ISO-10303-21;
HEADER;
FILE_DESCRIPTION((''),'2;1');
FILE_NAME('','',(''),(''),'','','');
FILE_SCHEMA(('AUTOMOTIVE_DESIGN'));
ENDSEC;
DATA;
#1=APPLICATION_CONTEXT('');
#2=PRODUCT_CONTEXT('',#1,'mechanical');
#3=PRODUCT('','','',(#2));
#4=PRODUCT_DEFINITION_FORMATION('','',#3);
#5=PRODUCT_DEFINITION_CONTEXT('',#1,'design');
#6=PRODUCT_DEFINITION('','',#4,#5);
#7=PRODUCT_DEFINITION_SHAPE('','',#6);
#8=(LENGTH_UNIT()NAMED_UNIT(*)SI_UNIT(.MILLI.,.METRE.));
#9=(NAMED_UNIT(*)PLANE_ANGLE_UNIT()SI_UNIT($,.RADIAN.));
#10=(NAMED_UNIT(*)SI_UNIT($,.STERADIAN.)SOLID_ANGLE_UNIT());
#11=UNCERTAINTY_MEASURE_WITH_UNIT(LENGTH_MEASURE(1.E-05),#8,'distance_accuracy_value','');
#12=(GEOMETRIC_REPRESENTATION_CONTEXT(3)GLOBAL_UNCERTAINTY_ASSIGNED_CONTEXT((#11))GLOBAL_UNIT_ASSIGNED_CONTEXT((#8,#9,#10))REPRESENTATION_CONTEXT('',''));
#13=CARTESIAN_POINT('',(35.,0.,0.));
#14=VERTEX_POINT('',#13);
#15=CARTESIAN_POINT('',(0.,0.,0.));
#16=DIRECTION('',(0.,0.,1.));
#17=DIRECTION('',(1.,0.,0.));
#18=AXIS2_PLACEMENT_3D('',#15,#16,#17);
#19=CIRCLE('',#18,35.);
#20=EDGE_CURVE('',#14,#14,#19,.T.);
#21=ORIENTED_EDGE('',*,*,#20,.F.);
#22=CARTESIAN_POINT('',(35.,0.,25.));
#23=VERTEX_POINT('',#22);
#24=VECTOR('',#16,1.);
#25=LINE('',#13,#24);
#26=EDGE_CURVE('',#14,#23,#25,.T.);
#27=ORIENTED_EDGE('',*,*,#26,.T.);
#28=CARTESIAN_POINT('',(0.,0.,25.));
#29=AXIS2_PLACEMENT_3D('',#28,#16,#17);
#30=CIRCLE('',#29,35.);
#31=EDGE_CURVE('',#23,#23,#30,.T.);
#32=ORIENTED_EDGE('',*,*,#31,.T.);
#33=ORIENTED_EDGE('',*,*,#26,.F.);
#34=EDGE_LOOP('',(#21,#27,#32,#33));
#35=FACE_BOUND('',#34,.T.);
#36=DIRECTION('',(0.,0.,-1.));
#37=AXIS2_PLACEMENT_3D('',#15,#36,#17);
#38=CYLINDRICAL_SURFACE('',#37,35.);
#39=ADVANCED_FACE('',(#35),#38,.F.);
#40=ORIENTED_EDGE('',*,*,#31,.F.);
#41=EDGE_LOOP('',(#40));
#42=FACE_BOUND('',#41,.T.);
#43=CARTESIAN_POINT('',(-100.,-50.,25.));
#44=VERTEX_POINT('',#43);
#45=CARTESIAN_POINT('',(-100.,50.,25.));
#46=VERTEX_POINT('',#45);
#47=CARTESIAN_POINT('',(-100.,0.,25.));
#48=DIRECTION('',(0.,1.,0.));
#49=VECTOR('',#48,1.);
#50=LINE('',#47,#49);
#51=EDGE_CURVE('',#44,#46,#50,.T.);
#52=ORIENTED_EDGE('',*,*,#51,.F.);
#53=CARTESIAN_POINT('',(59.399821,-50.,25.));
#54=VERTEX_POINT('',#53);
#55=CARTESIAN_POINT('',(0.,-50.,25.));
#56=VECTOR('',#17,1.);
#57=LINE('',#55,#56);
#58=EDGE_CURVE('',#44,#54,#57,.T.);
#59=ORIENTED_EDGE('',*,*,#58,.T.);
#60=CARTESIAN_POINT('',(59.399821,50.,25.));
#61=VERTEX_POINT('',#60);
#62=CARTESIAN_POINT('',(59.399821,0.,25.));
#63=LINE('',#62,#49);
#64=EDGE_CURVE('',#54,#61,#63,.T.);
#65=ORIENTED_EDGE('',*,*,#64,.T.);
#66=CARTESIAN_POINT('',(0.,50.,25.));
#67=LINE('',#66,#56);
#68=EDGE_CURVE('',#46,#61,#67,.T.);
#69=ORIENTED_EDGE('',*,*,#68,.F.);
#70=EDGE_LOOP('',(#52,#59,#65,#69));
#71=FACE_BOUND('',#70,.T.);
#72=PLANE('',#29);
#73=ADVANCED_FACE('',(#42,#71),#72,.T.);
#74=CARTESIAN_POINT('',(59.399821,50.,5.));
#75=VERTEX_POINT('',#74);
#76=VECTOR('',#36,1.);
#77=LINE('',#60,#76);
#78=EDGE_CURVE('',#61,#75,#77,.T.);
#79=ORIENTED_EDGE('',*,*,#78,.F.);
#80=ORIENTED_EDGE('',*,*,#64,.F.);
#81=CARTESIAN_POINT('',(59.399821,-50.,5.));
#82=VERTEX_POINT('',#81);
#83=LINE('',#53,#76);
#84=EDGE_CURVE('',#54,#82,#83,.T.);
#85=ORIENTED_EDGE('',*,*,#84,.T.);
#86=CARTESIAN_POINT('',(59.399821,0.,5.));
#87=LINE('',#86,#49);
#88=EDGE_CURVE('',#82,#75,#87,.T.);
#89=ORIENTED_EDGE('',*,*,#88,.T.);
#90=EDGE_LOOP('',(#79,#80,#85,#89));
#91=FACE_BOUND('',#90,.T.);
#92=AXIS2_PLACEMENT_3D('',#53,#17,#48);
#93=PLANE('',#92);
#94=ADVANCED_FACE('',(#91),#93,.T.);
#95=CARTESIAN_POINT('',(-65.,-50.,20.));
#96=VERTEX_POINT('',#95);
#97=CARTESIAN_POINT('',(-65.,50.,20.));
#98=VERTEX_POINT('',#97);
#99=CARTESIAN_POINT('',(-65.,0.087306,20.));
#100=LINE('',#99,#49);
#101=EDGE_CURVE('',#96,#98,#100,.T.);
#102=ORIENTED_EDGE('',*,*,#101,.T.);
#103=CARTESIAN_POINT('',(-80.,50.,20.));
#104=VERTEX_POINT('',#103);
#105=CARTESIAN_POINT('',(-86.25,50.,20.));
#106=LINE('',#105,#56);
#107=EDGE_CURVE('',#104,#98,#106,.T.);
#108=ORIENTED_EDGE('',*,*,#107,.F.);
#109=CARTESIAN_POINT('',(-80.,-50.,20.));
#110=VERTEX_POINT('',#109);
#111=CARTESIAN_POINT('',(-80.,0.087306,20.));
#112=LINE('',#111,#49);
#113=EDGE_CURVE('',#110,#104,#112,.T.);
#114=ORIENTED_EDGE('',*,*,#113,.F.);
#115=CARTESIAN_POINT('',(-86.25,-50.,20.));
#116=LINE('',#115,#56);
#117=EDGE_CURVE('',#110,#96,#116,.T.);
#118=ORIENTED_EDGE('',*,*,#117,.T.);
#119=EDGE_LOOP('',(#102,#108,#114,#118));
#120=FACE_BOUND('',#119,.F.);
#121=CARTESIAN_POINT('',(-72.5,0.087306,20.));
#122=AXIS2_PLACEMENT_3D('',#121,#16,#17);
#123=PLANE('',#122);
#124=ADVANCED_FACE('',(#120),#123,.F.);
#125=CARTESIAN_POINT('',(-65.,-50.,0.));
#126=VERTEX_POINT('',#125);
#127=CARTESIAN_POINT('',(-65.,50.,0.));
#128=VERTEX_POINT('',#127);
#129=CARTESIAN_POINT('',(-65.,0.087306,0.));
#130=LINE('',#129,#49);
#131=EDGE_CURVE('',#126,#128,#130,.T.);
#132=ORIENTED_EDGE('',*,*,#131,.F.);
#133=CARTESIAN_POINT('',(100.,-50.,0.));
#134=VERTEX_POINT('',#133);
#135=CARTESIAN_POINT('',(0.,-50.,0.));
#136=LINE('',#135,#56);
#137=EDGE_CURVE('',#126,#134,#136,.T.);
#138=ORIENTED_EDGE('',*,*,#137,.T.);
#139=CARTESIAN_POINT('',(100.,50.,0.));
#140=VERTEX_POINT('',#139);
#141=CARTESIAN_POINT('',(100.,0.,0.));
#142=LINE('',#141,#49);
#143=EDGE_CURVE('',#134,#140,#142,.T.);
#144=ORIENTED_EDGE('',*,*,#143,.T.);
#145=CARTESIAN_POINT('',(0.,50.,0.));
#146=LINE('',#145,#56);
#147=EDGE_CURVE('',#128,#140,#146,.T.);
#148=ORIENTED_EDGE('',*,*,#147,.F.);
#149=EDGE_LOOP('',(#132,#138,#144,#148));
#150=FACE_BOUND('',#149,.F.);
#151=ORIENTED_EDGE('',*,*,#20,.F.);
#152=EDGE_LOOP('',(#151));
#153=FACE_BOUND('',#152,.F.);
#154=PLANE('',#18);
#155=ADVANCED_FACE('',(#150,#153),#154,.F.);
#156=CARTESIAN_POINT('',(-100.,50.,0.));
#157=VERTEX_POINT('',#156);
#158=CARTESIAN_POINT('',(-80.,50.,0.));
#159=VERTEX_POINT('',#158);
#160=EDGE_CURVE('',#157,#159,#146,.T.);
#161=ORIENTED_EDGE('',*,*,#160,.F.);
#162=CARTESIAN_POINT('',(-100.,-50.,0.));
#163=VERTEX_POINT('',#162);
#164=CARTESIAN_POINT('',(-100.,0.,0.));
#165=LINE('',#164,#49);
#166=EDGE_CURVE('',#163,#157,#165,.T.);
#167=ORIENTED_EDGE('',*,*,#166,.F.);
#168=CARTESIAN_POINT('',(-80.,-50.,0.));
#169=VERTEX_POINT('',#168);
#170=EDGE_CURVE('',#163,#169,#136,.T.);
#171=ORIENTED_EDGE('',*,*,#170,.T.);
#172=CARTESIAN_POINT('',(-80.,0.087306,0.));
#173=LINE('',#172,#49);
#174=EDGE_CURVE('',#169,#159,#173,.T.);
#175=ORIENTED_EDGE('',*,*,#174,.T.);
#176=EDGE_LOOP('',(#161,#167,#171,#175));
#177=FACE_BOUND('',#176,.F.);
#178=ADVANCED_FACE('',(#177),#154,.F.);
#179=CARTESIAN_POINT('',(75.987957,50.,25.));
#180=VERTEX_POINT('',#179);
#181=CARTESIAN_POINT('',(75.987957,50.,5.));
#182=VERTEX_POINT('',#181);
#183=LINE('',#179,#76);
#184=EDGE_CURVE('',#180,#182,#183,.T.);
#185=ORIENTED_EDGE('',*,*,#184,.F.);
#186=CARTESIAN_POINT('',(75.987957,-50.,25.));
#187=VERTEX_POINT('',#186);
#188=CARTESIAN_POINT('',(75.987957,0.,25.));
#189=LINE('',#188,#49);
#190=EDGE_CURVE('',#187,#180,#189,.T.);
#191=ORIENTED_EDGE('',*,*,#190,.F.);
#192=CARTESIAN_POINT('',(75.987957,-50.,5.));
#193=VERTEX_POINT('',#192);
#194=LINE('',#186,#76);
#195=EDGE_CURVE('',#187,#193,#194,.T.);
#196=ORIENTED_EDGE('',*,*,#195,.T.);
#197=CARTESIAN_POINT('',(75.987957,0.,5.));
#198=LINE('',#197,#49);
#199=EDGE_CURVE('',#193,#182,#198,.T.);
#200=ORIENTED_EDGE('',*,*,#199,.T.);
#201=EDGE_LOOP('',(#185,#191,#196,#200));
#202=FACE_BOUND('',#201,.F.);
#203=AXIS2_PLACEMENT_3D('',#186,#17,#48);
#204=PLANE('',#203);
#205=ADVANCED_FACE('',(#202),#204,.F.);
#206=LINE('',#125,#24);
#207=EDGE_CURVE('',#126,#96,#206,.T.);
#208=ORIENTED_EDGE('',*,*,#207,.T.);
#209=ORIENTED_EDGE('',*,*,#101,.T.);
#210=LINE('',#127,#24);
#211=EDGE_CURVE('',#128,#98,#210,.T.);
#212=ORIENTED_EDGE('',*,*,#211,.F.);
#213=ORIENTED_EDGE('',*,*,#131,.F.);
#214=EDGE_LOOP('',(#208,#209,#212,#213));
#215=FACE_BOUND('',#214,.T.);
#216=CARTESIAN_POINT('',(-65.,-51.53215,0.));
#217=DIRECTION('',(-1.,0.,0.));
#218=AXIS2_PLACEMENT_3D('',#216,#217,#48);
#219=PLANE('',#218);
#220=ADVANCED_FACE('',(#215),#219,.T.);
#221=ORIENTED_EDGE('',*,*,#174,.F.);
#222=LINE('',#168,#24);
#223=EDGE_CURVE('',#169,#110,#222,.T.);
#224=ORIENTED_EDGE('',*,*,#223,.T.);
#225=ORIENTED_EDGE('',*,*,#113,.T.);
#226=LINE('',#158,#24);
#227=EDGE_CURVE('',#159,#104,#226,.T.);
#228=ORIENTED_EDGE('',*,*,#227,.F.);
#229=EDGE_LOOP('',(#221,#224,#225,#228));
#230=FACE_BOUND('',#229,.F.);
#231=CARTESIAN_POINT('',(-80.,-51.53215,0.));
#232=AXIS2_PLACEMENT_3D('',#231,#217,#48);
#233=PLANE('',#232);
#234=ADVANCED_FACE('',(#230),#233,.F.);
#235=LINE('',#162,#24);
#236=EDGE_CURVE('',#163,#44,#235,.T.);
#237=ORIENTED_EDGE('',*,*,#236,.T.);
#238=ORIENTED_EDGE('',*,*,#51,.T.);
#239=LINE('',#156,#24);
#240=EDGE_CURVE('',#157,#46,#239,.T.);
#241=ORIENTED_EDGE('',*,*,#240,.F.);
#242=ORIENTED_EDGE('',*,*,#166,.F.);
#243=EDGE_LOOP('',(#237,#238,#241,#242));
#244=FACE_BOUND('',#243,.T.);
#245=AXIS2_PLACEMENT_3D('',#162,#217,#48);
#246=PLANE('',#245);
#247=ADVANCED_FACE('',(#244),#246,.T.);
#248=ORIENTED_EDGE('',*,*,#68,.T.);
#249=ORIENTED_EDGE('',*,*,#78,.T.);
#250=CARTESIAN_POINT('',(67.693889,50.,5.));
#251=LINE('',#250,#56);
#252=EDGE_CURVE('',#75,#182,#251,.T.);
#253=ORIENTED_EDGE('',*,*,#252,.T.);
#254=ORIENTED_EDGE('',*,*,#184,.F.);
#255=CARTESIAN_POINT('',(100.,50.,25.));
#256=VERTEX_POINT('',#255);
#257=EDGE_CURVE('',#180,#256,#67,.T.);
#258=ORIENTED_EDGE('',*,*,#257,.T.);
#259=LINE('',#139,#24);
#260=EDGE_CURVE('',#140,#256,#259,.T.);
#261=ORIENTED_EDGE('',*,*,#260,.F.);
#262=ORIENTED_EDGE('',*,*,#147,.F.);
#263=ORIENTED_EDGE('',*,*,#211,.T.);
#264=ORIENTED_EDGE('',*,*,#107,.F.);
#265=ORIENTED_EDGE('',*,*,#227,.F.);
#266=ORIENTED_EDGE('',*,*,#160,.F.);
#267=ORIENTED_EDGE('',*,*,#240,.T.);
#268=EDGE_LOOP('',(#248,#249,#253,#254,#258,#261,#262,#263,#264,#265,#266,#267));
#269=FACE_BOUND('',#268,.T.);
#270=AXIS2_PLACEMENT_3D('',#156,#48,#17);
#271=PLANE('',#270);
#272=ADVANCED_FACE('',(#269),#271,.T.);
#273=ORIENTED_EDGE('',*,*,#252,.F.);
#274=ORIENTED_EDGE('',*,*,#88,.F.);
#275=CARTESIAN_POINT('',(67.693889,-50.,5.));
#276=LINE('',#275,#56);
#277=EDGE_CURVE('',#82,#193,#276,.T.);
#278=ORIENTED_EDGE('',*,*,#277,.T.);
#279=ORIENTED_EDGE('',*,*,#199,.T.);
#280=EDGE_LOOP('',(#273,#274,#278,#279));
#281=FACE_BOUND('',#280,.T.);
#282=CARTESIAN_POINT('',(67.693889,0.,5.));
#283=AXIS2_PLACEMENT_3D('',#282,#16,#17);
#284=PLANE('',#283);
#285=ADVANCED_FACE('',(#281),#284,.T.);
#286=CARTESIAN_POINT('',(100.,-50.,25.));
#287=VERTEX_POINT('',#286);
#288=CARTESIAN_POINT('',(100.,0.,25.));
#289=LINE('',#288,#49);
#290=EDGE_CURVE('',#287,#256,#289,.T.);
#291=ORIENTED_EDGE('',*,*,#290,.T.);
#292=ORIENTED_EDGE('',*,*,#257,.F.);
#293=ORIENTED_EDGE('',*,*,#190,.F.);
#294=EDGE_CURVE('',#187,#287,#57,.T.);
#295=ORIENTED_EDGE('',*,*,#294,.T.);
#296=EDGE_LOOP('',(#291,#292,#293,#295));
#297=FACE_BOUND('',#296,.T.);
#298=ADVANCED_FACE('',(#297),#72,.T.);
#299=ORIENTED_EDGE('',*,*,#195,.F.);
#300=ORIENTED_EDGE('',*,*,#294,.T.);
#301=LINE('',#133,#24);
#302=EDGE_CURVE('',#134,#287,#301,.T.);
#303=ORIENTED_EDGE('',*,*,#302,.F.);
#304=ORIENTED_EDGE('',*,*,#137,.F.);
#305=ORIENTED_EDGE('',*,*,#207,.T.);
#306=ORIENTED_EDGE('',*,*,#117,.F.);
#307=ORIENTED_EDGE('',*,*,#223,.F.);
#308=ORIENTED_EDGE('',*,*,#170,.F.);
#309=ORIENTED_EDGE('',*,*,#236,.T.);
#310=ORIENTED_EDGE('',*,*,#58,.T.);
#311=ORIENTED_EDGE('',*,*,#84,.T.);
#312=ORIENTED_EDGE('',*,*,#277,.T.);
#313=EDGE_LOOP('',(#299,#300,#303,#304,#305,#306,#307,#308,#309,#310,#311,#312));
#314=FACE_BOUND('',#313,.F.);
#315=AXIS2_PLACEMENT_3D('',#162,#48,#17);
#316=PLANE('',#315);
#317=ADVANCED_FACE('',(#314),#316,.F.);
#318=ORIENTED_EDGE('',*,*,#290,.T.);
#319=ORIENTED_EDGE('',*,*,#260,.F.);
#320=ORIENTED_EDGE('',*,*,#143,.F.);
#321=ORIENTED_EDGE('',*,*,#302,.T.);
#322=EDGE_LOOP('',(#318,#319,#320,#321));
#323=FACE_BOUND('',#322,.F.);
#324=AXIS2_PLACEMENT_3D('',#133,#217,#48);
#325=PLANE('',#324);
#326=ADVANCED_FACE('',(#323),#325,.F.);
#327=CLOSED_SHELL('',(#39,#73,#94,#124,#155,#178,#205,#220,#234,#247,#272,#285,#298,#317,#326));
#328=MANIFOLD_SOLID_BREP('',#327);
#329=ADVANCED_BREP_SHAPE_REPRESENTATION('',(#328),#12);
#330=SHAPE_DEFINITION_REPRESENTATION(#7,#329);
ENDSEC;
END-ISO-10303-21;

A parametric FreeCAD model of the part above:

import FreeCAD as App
import Part
import Sketcher
from FreeCAD import Vector
Q = App.Units.Quantity

doc = App.newDocument("Part")
body = doc.addObject("PartDesign::Body", "Body")

sketch1 = body.newObject("Sketcher::SketchObject", "Sketch")
sketch1.AttachmentSupport = (doc.getObject("XY_Plane"), [""])
sketch1.MapMode = "FlatFace"
sketch1.addGeometry([
    Part.LineSegment(Vector(-100, 50, 0), Vector(-100, -50, 0)),
    Part.LineSegment(Vector(-100, -50, 0), Vector(100, -50, 0)),
    Part.LineSegment(Vector(100, -50, 0), Vector(100, 50, 0)),
    Part.LineSegment(Vector(100, 50, 0), Vector(-100, 50, 0)),
    Part.Circle(Vector(0, 0, 0), Vector(0, 0, 1), 35),
], False)
sketch1.addConstraint([
    Sketcher.Constraint("Coincident", 0, 2, 1, 1),
    Sketcher.Constraint("Coincident", 1, 2, 2, 1),
    Sketcher.Constraint("Coincident", 2, 2, 3, 1),
    Sketcher.Constraint("Coincident", 3, 2, 0, 1),
    Sketcher.Constraint("Vertical", 0),
    Sketcher.Constraint("Horizontal", 1),
    Sketcher.Constraint("Vertical", 2),
    Sketcher.Constraint("Horizontal", 3),
    Sketcher.Constraint("Coincident", 4, 3, -1, 1),
    Sketcher.Constraint("Symmetric", 0, 2, 2, 2, -1, 1),
    Sketcher.Constraint("Diameter", 4, Q("70 mm")),
    Sketcher.Constraint("DistanceX", 1, 1, 1, 2, Q("200 mm")),
    Sketcher.Constraint("DistanceY", 0, 2, 0, 1, Q("100 mm")),
])
pad1 = body.newObject("PartDesign::Pad", "Pad")
pad1.Profile = sketch1
pad1.Length = 25

sketch2 = body.newObject("Sketcher::SketchObject", "Sketch001")
sketch2.AttachmentSupport = (doc.getObject("XY_Plane"), [""])
sketch2.MapMode = "FlatFace"
sketch2.AttachmentOffset = App.Placement(Vector(0, 0, 25), App.Rotation())
sketch2.addGeometry([
    Part.LineSegment(Vector(59, 50, 0), Vector(59, -50, 0)),
    Part.LineSegment(Vector(59, -50, 0), Vector(76, -50, 0)),
    Part.LineSegment(Vector(76, -50, 0), Vector(76, 50, 0)),
    Part.LineSegment(Vector(76, 50, 0), Vector(59, 50, 0)),
], False)
sketch2.addConstraint([
    Sketcher.Constraint("Coincident", 0, 2, 1, 1),
    Sketcher.Constraint("Coincident", 1, 2, 2, 1),
    Sketcher.Constraint("Coincident", 2, 2, 3, 1),
    Sketcher.Constraint("Coincident", 3, 2, 0, 1),
    Sketcher.Constraint("Vertical", 0),
    Sketcher.Constraint("Horizontal", 1),
    Sketcher.Constraint("Vertical", 2),
    Sketcher.Constraint("Horizontal", 3),
    Sketcher.Constraint("DistanceY", 0, 2, 0, 1, Q("100 mm")),
    Sketcher.Constraint("DistanceY", 0, 2, -1, 1, Q("50 mm")),
    Sketcher.Constraint("DistanceX", 1, 1, 1, 2, Q("16.588136 mm")),
    Sketcher.Constraint("DistanceX", -1, 1, 0, 2, Q("59.399821 mm")),
])
pocket1 = body.newObject("PartDesign::Pocket", "Pocket")
pocket1.Profile = sketch2
pocket1.Length = 20

sketch3 = body.newObject("Sketcher::SketchObject", "Sketch002")
sketch3.AttachmentSupport = (doc.getObject("XY_Plane"), [""])
sketch3.MapMode = "FlatFace"
sketch3.addGeometry([
    Part.LineSegment(Vector(-80, 52, 0), Vector(-80, -52, 0)),
    Part.LineSegment(Vector(-80, -52, 0), Vector(-65, -52, 0)),
    Part.LineSegment(Vector(-65, -52, 0), Vector(-65, 52, 0)),
    Part.LineSegment(Vector(-65, 52, 0), Vector(-80, 52, 0)),
], False)
sketch3.addConstraint([
    Sketcher.Constraint("Coincident", 0, 2, 1, 1),
    Sketcher.Constraint("Coincident", 1, 2, 2, 1),
    Sketcher.Constraint("Coincident", 2, 2, 3, 1),
    Sketcher.Constraint("Coincident", 3, 2, 0, 1),
    Sketcher.Constraint("Vertical", 0),
    Sketcher.Constraint("Horizontal", 1),
    Sketcher.Constraint("Vertical", 2),
    Sketcher.Constraint("Horizontal", 3),
    Sketcher.Constraint("DistanceX", 1, 1, 1, 2, Q("15 mm")),
    Sketcher.Constraint("DistanceX", 0, 2, -1, 1, Q("80 mm")),
    Sketcher.Constraint("DistanceY", 0, 2, 0, 1, Q("103.238912 mm")),
    Sketcher.Constraint("DistanceY", 0, 2, -1, 1, Q("51.53215 mm")),
])
pocket2 = body.newObject("PartDesign::Pocket", "Pocket001")
pocket2.Profile = sketch3
pocket2.Length = 20
pocket2.Reversed = True

doc.recompute()
